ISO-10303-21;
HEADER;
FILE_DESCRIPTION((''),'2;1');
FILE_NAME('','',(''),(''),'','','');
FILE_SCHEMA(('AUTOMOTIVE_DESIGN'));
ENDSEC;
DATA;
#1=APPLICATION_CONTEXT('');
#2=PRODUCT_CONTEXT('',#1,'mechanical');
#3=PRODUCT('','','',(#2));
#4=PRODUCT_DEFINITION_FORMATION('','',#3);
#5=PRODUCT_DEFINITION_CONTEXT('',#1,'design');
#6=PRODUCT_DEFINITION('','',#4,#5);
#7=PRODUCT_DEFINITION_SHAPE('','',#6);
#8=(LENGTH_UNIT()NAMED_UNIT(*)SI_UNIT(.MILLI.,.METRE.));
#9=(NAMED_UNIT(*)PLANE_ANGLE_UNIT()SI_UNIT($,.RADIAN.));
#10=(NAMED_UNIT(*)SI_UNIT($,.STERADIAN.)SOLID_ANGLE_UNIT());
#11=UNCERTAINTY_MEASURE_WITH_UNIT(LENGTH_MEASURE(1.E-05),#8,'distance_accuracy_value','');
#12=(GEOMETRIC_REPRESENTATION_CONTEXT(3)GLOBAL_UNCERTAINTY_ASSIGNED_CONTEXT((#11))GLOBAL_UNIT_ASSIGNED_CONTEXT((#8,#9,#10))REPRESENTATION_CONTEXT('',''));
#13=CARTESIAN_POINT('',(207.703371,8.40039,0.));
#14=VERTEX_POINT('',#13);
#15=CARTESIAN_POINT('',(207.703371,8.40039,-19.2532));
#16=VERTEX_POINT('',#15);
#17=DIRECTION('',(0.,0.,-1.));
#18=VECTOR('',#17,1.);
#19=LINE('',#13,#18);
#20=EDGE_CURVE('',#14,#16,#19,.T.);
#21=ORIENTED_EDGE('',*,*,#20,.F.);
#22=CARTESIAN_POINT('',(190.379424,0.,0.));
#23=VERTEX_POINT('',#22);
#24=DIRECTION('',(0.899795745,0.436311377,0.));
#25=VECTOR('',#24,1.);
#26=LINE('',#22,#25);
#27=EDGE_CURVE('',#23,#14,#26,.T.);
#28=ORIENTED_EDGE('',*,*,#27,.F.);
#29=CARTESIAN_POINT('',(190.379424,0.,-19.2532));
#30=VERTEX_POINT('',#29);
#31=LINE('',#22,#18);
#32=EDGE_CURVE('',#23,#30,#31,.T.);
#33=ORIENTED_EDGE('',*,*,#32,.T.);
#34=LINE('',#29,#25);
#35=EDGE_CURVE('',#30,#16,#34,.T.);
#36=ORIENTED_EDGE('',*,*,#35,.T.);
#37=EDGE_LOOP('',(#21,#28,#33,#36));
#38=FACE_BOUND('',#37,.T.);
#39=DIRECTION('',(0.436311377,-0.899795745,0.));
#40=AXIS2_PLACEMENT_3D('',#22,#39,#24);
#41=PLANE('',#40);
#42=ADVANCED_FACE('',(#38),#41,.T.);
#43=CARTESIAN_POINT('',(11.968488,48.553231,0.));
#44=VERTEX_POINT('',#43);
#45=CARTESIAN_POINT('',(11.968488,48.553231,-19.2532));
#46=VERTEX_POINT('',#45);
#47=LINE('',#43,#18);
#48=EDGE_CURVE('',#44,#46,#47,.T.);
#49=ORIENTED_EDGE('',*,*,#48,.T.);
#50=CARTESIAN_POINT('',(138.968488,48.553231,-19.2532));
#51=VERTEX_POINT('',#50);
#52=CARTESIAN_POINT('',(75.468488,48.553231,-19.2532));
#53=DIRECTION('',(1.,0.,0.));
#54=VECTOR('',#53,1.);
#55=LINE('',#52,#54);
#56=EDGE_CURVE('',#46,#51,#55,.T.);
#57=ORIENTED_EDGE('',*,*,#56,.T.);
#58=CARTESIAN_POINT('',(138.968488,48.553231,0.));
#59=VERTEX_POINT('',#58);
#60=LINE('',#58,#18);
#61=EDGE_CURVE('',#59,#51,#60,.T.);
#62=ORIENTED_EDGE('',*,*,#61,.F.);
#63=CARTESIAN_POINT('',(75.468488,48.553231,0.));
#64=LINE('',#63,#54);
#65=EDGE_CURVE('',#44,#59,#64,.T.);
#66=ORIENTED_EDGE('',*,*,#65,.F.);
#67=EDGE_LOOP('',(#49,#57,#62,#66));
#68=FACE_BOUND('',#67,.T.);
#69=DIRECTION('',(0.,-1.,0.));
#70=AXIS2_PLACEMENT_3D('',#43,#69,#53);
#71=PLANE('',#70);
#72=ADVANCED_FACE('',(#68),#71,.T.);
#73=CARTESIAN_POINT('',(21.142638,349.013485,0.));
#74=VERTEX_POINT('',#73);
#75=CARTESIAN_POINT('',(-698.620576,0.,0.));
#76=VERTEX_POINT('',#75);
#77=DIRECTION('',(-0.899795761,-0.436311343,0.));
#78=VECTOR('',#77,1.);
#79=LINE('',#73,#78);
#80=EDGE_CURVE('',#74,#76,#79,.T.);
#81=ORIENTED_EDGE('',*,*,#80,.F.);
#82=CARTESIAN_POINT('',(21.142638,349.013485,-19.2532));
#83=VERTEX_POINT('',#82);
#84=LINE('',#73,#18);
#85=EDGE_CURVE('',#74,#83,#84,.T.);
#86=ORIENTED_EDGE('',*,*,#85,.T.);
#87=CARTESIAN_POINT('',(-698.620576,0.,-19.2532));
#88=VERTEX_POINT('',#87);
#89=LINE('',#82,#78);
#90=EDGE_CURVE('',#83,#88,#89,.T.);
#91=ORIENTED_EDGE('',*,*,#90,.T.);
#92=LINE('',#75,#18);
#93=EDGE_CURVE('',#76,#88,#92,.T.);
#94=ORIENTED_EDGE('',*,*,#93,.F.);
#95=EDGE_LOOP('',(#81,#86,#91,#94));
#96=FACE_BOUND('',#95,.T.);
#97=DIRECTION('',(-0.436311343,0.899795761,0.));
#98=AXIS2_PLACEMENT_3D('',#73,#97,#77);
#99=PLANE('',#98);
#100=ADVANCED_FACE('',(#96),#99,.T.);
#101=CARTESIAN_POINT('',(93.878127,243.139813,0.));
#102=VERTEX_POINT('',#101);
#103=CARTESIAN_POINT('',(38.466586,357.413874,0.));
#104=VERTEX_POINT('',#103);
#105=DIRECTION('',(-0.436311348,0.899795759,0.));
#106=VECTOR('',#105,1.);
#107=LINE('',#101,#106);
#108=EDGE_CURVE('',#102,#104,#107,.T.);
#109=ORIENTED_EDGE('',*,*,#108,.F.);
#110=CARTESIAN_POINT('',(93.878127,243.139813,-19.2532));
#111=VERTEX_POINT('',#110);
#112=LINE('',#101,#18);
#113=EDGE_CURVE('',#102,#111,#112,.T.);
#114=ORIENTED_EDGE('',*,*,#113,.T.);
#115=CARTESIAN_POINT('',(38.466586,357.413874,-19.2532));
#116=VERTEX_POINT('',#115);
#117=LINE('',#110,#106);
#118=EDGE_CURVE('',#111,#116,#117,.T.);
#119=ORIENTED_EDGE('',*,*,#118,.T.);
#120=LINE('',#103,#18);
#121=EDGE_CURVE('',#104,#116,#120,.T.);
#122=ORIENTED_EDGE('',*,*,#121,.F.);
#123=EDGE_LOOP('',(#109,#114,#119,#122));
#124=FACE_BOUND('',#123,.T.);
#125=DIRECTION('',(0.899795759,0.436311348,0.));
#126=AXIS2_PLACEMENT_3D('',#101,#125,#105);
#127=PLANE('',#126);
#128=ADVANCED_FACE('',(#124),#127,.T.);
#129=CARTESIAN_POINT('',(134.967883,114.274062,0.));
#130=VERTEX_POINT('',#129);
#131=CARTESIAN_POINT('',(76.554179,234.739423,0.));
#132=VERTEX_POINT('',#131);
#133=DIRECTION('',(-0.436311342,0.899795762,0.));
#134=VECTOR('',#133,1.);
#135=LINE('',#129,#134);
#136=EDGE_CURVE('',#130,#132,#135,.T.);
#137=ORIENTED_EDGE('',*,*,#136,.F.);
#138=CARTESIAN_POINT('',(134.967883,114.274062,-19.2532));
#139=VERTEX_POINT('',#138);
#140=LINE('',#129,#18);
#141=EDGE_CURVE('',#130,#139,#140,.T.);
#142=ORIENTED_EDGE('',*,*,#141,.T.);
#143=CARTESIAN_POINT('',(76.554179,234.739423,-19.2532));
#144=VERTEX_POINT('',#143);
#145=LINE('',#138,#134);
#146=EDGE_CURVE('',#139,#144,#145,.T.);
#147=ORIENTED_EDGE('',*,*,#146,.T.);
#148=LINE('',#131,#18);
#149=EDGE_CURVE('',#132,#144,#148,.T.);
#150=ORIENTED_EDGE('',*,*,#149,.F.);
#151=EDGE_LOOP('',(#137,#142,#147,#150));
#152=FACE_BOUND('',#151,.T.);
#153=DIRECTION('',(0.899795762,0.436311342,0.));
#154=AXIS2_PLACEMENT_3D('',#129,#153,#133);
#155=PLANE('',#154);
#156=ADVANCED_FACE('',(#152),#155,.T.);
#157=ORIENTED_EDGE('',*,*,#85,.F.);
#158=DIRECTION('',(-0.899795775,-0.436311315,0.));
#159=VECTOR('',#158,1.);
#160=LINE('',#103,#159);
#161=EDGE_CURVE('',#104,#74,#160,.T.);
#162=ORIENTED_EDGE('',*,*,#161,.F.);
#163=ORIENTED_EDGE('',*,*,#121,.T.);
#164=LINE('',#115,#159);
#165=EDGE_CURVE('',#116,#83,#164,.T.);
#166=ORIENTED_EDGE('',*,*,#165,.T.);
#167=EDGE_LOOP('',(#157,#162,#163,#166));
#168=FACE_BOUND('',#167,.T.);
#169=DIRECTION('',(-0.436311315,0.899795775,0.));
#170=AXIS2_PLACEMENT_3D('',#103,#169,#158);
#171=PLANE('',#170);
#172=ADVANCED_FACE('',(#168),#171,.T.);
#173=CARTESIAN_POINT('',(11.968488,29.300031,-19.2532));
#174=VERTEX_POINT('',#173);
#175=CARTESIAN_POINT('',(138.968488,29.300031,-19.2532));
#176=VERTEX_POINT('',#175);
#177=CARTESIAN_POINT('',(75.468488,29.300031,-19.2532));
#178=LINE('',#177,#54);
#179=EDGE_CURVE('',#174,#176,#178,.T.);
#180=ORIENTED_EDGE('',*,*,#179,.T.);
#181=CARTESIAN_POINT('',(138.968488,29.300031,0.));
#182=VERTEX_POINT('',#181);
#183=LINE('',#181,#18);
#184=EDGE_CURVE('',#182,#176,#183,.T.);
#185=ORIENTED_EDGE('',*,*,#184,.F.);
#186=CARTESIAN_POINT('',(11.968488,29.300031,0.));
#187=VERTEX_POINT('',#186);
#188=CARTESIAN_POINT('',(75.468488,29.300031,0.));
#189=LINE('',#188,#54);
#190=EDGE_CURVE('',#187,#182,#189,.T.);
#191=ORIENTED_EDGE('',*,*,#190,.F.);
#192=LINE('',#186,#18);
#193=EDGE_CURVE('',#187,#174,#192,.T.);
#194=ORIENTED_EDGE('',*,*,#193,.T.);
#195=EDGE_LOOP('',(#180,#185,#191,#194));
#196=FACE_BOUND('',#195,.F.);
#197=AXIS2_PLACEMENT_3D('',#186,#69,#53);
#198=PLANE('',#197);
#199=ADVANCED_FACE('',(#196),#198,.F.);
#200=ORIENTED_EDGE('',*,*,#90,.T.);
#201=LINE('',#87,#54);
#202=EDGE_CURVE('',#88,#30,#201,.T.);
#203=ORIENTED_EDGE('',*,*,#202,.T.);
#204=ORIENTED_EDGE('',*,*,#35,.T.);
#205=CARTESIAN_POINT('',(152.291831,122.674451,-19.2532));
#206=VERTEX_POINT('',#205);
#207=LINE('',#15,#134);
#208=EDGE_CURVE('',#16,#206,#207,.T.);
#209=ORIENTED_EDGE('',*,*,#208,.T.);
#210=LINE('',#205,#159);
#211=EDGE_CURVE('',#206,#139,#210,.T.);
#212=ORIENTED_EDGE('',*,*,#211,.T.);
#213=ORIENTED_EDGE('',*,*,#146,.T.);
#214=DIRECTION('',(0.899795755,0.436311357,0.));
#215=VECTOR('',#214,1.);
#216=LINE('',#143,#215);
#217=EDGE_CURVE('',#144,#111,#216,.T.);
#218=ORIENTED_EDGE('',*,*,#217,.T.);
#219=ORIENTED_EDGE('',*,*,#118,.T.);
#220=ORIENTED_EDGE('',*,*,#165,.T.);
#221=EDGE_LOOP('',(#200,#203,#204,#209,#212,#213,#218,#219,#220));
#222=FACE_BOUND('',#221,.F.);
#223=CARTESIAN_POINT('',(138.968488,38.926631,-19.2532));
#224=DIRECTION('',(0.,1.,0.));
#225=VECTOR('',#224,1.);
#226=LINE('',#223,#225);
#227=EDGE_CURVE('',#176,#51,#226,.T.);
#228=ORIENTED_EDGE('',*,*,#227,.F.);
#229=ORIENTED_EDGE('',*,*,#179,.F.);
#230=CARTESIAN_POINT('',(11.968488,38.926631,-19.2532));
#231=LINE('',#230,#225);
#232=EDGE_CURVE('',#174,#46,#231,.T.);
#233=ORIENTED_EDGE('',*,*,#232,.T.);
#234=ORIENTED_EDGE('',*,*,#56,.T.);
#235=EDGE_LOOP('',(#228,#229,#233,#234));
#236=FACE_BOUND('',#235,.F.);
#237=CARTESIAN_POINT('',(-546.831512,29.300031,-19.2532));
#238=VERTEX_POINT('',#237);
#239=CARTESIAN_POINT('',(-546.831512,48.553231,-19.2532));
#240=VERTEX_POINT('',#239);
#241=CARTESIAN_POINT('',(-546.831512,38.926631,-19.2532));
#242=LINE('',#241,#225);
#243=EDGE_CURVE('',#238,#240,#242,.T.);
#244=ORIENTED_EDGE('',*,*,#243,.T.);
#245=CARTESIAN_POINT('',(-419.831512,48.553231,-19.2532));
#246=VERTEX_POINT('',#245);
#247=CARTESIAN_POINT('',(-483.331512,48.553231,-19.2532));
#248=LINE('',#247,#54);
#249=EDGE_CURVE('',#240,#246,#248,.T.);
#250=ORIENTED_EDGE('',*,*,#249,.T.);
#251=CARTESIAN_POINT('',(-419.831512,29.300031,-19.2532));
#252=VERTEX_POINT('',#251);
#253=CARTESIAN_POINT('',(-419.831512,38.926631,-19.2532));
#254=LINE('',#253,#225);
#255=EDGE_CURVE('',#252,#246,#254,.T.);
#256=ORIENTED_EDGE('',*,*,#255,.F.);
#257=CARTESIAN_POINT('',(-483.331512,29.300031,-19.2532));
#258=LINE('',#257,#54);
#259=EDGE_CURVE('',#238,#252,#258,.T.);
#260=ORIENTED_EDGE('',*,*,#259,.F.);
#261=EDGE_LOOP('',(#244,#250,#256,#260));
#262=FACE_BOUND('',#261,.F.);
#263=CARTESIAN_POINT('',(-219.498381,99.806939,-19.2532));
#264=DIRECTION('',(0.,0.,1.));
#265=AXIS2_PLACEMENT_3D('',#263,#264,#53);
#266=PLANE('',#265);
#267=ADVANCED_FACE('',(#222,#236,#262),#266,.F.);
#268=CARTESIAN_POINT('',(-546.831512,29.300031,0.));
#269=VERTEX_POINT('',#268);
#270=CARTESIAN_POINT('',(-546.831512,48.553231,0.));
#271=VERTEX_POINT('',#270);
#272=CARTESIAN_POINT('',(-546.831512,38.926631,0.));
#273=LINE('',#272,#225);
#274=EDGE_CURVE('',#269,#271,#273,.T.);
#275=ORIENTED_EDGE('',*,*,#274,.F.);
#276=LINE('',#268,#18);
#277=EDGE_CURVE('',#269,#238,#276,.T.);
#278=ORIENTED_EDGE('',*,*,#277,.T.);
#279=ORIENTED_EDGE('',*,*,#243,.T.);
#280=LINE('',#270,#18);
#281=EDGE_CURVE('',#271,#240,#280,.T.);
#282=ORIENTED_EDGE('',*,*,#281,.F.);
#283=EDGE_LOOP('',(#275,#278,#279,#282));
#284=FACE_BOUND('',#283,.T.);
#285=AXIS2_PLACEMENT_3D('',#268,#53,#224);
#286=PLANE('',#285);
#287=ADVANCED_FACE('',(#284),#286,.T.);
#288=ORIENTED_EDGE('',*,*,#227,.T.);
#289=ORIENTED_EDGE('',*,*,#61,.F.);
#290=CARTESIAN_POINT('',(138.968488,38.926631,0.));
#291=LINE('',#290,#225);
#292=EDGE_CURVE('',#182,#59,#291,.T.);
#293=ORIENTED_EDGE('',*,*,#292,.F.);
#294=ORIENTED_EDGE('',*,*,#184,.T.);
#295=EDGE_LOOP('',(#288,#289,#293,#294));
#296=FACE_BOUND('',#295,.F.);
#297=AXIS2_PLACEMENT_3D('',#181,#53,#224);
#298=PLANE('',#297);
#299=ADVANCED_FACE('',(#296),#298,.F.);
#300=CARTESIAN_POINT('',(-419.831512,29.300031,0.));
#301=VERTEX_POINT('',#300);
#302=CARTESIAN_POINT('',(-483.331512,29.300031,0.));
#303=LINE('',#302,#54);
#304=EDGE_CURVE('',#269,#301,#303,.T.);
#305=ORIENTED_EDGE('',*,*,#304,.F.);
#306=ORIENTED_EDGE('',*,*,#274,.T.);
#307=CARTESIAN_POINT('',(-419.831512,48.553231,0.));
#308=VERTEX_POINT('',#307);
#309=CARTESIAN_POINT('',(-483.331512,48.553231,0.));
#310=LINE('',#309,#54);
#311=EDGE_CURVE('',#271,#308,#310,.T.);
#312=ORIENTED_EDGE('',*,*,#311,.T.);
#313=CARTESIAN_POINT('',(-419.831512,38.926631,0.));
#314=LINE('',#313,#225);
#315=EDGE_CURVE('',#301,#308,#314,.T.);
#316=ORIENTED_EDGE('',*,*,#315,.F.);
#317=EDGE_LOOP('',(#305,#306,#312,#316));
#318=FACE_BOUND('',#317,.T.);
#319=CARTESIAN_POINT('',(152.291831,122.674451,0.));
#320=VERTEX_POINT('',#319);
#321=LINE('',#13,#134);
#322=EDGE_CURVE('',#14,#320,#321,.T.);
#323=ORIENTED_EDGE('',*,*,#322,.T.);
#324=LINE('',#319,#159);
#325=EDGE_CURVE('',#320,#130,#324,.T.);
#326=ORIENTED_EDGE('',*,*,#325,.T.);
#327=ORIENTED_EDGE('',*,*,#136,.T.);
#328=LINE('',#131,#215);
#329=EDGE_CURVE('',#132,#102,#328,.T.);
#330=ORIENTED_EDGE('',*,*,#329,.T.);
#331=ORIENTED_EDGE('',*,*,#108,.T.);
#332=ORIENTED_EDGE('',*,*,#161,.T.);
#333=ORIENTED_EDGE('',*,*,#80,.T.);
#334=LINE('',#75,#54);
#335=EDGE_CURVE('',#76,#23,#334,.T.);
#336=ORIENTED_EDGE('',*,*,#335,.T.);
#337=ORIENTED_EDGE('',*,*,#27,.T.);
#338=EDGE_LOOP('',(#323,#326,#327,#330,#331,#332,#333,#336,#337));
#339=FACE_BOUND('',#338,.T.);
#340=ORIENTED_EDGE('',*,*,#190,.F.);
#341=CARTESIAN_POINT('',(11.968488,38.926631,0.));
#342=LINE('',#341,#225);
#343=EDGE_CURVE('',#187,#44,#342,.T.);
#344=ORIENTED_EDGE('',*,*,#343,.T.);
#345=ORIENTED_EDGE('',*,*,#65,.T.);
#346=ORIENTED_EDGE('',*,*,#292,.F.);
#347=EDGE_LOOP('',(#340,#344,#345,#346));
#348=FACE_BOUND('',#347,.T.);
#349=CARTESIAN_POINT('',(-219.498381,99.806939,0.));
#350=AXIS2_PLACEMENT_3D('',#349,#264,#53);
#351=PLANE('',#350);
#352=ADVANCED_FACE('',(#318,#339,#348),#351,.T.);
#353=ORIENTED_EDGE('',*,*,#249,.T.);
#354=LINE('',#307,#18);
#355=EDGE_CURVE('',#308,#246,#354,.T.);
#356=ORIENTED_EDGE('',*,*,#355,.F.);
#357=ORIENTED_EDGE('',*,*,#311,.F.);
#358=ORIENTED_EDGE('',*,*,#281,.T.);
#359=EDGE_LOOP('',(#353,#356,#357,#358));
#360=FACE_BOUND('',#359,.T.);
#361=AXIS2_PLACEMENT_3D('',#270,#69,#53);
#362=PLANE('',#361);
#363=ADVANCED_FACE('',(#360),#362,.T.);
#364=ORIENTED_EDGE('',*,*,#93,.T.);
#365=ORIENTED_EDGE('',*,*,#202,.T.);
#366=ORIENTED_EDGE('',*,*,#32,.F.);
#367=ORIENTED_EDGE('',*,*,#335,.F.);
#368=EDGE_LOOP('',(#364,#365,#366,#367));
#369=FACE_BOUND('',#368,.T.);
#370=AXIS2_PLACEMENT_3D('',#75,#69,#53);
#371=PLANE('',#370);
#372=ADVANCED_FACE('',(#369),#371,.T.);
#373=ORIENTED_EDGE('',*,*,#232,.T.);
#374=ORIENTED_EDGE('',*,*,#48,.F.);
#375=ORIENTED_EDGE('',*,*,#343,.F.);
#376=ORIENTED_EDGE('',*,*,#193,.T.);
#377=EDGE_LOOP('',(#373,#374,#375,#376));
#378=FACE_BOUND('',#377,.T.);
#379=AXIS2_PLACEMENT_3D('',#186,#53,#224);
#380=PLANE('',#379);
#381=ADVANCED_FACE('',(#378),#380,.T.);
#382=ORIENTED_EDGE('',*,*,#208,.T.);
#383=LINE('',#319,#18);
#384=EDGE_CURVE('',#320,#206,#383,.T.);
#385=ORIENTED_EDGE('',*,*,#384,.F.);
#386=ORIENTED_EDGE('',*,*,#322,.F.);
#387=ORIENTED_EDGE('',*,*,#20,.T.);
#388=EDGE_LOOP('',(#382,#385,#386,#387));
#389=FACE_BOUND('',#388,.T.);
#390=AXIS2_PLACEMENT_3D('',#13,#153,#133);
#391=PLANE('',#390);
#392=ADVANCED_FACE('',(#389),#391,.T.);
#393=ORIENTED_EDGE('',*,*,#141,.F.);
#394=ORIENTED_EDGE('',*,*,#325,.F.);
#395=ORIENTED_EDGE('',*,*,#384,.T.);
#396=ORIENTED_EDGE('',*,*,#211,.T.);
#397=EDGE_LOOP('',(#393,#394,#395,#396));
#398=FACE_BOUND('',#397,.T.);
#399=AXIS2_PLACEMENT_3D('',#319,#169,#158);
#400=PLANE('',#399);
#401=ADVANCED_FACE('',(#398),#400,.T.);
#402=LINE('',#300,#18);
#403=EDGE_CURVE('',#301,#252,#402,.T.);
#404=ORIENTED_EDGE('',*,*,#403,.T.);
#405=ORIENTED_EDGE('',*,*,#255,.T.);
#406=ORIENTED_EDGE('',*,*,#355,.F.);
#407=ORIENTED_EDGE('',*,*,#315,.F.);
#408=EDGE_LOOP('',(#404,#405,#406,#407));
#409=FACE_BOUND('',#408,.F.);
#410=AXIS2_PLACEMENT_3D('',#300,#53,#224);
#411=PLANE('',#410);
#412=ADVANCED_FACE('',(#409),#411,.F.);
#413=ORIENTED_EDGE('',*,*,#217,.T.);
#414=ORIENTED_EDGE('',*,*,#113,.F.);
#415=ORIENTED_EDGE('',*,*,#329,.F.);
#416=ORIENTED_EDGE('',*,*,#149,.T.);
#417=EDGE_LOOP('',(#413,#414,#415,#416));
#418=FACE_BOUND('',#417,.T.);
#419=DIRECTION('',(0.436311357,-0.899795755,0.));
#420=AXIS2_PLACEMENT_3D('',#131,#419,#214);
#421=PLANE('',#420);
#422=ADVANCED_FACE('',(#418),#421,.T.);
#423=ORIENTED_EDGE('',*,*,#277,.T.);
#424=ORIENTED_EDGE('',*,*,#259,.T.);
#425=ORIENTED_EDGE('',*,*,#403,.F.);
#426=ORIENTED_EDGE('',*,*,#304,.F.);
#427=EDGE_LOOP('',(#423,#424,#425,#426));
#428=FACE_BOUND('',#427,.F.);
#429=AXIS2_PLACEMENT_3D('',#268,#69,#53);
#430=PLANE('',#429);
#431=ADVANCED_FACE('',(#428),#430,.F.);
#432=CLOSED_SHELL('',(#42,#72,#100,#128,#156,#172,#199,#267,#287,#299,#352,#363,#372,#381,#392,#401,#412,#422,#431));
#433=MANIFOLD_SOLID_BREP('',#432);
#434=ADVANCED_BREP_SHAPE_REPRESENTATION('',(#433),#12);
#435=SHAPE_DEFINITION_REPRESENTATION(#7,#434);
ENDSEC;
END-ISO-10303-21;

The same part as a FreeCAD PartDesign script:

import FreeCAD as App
import Part
import Sketcher

V = App.Vector
Q = App.Units.Quantity

doc = App.newDocument("Part")
body = doc.addObject("PartDesign::Body", "Body")

# Sketch on XY plane
sketch1 = body.newObject("Sketcher::SketchObject", "Sketch")
sketch1.AttachmentSupport = (doc.getObject("XY_Plane"), [""])
sketch1.MapMode = "FlatFace"
sketch1.addGeometry([
    Part.LineSegment(V(21, 349, 0), V(-699, 0, 0)),  # 0
    Part.LineSegment(V(-699, 0, 0), V(190, 0, 0)),  # 1
    Part.LineSegment(V(190, 0, 0), V(208, 8, 0)),  # 2
    Part.LineSegment(V(208, 8, 0), V(152, 123, 0)),  # 3
    Part.LineSegment(V(152, 123, 0), V(135, 114, 0)),  # 4
    Part.LineSegment(V(135, 114, 0), V(77, 235, 0)),  # 5
    Part.LineSegment(V(77, 235, 0), V(94, 243, 0)),  # 6
    Part.LineSegment(V(94, 243, 0), V(38, 357, 0)),  # 7
    Part.LineSegment(V(38, 357, 0), V(21, 349, 0)),  # 8
    Part.LineSegment(V(-420, 29, 0), V(-547, 29, 0)),  # 9
    Part.LineSegment(V(-547, 29, 0), V(-547, 49, 0)),  # 10
    Part.LineSegment(V(-547, 49, 0), V(-420, 49, 0)),  # 11
    Part.LineSegment(V(-420, 49, 0), V(-420, 29, 0)),  # 12
    Part.LineSegment(V(139, 29, 0), V(12, 29, 0)),  # 13
    Part.LineSegment(V(12, 29, 0), V(12, 49, 0)),  # 14
    Part.LineSegment(V(12, 49, 0), V(139, 49, 0)),  # 15
    Part.LineSegment(V(139, 49, 0), V(139, 29, 0)),  # 16
], False)
sketch1.addConstraint([
    Sketcher.Constraint("Coincident", 0, 2, 1, 1),
    Sketcher.Constraint("Coincident", 1, 2, 2, 1),
    Sketcher.Constraint("Coincident", 2, 2, 3, 1),
    Sketcher.Constraint("Coincident", 3, 2, 4, 1),
    Sketcher.Constraint("Coincident", 4, 2, 5, 1),
    Sketcher.Constraint("Coincident", 5, 2, 6, 1),
    Sketcher.Constraint("Coincident", 6, 2, 7, 1),
    Sketcher.Constraint("Coincident", 7, 2, 8, 1),
    Sketcher.Constraint("Coincident", 8, 2, 0, 1),
    Sketcher.Constraint("Coincident", 9, 2, 10, 1),
    Sketcher.Constraint("Coincident", 10, 2, 11, 1),
    Sketcher.Constraint("Coincident", 11, 2, 12, 1),
    Sketcher.Constraint("Coincident", 12, 2, 9, 1),
    Sketcher.Constraint("Coincident", 13, 2, 14, 1),
    Sketcher.Constraint("Coincident", 14, 2, 15, 1),
    Sketcher.Constraint("Coincident", 15, 2, 16, 1),
    Sketcher.Constraint("Coincident", 16, 2, 13, 1),
    Sketcher.Constraint("Horizontal", 1),
    Sketcher.Constraint("Horizontal", 9),
    Sketcher.Constraint("Vertical", 10),
    Sketcher.Constraint("Horizontal", 11),
    Sketcher.Constraint("Vertical", 12),
    Sketcher.Constraint("Horizontal", 13),
    Sketcher.Constraint("Vertical", 14),
    Sketcher.Constraint("Horizontal", 15),
    Sketcher.Constraint("Vertical", 16),
    Sketcher.Constraint("PointOnObject", 0, 2, -1),
    Sketcher.Constraint("Parallel", 0, 2),
    Sketcher.Constraint("Perpendicular", 2, 3),
    Sketcher.Constraint("Perpendicular", 3, 4),
    Sketcher.Constraint("Perpendicular", 4, 5),
    Sketcher.Constraint("Perpendicular", 5, 6),
    Sketcher.Constraint("Perpendicular", 6, 7),
    Sketcher.Constraint("Perpendicular", 7, 8),
    Sketcher.Constraint("Horizontal", 12, 2, 13, 2),
    Sketcher.Constraint("Horizontal", 11, 2, 14, 2),
    Sketcher.Constraint("Equal", 11, 13),
    Sketcher.Constraint("Equal", 2, 4),
    Sketcher.Constraint("Equal", 4, 6),
    Sketcher.Constraint("Equal", 3, 7),
    Sketcher.Constraint("Equal", 6, 8),
    Sketcher.Constraint("DistanceX", 1, 1, 1, 2, Q("35 in")),
    Sketcher.Constraint("DistanceX", 9, 2, 9, 1, Q("5 in")),
    Sketcher.Constraint("Distance", 3, Q("5 in")),
    Sketcher.Constraint("DistanceY", 10, 1, 10, 2, Q("0.758 in")),
    Sketcher.Constraint("Distance", 2, Q("0.758 in")),
    Sketcher.Constraint("DistanceX", 9, 2, 7, 2, 585.298098),
    Sketcher.Constraint("Distance", 0, 799.918431),
    Sketcher.Constraint("DistanceX", -1, 1, 2, 2, 207.703371),
    Sketcher.Constraint("DistanceY", -1, 1, 9, 2, 29.300031),
    Sketcher.Constraint("DistanceX", -1, 1, 13, 2, 11.968488),
])
pad1 = body.newObject("PartDesign::Pad", "Pad")
pad1.Profile = sketch1
pad1.Length = Q("0.758 in")
pad1.Reversed = True

doc.recompute()
